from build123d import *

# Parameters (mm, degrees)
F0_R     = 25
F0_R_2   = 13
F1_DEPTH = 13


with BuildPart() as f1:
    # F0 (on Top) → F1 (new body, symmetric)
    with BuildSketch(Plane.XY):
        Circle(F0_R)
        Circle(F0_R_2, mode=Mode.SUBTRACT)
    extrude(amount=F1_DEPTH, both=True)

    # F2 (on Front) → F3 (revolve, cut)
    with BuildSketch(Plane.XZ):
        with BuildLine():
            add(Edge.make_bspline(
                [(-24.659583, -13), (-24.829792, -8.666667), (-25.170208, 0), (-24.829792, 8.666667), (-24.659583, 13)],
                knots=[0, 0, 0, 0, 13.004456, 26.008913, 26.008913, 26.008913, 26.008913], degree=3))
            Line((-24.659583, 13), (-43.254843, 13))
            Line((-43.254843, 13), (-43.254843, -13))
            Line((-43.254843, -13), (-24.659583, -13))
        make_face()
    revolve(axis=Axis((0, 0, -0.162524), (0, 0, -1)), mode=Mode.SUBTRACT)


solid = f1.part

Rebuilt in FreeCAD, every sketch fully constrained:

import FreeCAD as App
import Part
import Sketcher

V = App.Vector

doc = App.newDocument("Part")
body = doc.addObject("PartDesign::Body", "Body")

# Sketch on XY plane
sketch1 = doc.addObject("Sketcher::SketchObject", "Sketch")
body.addObject(sketch1)
sketch1.AttachmentSupport = (doc.XY_Plane, [""])
sketch1.MapMode = "FlatFace"
sketch1.addGeometry(Part.Circle(V(0, 0, 0), V(0, 0, 1), 25), False)
sketch1.addGeometry(Part.Circle(V(0, 0, 0), V(0, 0, 1), 13), False)
sketch1.addConstraint(Sketcher.Constraint("Coincident", 0, 3, -1, 1))
sketch1.addConstraint(Sketcher.Constraint("Coincident", 1, 3, -1, 1))
sketch1.addConstraint(Sketcher.Constraint("Diameter", 0, 50.0))
sketch1.addConstraint(Sketcher.Constraint("Diameter", 1, 26.0))
pad1 = doc.addObject("PartDesign::Pad", "Pad")
body.addObject(pad1)
pad1.Profile = sketch1
pad1.Length = 26
pad1.Midplane = True

# Sketch on XZ plane
sketch2 = doc.addObject("Sketcher::SketchObject", "Sketch001")
body.addObject(sketch2)
sketch2.AttachmentSupport = (doc.XZ_Plane, [""])
sketch2.MapMode = "FlatFace"
sketch2.addGeometry(Part.BSplineCurve([V(-24.659583, -13, 0), V(-24.829792, -8.666667, 0), V(-25.170208, 0, 0), V(-24.829792, 8.666667, 0), V(-24.659583, 13, 0)], [4, 1, 4], [0, 13.004456, 26.008913], False, 3, [1, 1, 1, 1, 1], False), False)
sketch2.addGeometry(Part.LineSegment(V(-24.659583, 13, 0), V(-43.254843, 13, 0)), False)
sketch2.addGeometry(Part.LineSegment(V(-43.254843, 13, 0), V(-43.254843, -13, 0)), False)
sketch2.addGeometry(Part.LineSegment(V(-43.254843, -13, 0), V(-24.659583, -13, 0)), False)
sketch2.addConstraint(Sketcher.Constraint("Block", 0))
sketch2.addConstraint(Sketcher.Constraint("Coincident", 0, 2, 1, 1))
sketch2.addConstraint(Sketcher.Constraint("Coincident", 1, 2, 2, 1))
sketch2.addConstraint(Sketcher.Constraint("Coincident", 2, 2, 3, 1))
sketch2.addConstraint(Sketcher.Constraint("Coincident", 3, 2, 0, 1))
sketch2.addConstraint(Sketcher.Constraint("Horizontal", 1))
sketch2.addConstraint(Sketcher.Constraint("Vertical", 2))
sketch2.addConstraint(Sketcher.Constraint("Horizontal", 3))
sketch2.addConstraint(Sketcher.Constraint("DistanceX", 1, 2, 1, 1, 18.59526))
groove = doc.addObject("PartDesign::Groove", "Groove")
body.addObject(groove)
groove.Profile = sketch2
groove.ReferenceAxis = (sketch2, ["V_Axis"])
groove.Angle = 360

doc.recompute()
